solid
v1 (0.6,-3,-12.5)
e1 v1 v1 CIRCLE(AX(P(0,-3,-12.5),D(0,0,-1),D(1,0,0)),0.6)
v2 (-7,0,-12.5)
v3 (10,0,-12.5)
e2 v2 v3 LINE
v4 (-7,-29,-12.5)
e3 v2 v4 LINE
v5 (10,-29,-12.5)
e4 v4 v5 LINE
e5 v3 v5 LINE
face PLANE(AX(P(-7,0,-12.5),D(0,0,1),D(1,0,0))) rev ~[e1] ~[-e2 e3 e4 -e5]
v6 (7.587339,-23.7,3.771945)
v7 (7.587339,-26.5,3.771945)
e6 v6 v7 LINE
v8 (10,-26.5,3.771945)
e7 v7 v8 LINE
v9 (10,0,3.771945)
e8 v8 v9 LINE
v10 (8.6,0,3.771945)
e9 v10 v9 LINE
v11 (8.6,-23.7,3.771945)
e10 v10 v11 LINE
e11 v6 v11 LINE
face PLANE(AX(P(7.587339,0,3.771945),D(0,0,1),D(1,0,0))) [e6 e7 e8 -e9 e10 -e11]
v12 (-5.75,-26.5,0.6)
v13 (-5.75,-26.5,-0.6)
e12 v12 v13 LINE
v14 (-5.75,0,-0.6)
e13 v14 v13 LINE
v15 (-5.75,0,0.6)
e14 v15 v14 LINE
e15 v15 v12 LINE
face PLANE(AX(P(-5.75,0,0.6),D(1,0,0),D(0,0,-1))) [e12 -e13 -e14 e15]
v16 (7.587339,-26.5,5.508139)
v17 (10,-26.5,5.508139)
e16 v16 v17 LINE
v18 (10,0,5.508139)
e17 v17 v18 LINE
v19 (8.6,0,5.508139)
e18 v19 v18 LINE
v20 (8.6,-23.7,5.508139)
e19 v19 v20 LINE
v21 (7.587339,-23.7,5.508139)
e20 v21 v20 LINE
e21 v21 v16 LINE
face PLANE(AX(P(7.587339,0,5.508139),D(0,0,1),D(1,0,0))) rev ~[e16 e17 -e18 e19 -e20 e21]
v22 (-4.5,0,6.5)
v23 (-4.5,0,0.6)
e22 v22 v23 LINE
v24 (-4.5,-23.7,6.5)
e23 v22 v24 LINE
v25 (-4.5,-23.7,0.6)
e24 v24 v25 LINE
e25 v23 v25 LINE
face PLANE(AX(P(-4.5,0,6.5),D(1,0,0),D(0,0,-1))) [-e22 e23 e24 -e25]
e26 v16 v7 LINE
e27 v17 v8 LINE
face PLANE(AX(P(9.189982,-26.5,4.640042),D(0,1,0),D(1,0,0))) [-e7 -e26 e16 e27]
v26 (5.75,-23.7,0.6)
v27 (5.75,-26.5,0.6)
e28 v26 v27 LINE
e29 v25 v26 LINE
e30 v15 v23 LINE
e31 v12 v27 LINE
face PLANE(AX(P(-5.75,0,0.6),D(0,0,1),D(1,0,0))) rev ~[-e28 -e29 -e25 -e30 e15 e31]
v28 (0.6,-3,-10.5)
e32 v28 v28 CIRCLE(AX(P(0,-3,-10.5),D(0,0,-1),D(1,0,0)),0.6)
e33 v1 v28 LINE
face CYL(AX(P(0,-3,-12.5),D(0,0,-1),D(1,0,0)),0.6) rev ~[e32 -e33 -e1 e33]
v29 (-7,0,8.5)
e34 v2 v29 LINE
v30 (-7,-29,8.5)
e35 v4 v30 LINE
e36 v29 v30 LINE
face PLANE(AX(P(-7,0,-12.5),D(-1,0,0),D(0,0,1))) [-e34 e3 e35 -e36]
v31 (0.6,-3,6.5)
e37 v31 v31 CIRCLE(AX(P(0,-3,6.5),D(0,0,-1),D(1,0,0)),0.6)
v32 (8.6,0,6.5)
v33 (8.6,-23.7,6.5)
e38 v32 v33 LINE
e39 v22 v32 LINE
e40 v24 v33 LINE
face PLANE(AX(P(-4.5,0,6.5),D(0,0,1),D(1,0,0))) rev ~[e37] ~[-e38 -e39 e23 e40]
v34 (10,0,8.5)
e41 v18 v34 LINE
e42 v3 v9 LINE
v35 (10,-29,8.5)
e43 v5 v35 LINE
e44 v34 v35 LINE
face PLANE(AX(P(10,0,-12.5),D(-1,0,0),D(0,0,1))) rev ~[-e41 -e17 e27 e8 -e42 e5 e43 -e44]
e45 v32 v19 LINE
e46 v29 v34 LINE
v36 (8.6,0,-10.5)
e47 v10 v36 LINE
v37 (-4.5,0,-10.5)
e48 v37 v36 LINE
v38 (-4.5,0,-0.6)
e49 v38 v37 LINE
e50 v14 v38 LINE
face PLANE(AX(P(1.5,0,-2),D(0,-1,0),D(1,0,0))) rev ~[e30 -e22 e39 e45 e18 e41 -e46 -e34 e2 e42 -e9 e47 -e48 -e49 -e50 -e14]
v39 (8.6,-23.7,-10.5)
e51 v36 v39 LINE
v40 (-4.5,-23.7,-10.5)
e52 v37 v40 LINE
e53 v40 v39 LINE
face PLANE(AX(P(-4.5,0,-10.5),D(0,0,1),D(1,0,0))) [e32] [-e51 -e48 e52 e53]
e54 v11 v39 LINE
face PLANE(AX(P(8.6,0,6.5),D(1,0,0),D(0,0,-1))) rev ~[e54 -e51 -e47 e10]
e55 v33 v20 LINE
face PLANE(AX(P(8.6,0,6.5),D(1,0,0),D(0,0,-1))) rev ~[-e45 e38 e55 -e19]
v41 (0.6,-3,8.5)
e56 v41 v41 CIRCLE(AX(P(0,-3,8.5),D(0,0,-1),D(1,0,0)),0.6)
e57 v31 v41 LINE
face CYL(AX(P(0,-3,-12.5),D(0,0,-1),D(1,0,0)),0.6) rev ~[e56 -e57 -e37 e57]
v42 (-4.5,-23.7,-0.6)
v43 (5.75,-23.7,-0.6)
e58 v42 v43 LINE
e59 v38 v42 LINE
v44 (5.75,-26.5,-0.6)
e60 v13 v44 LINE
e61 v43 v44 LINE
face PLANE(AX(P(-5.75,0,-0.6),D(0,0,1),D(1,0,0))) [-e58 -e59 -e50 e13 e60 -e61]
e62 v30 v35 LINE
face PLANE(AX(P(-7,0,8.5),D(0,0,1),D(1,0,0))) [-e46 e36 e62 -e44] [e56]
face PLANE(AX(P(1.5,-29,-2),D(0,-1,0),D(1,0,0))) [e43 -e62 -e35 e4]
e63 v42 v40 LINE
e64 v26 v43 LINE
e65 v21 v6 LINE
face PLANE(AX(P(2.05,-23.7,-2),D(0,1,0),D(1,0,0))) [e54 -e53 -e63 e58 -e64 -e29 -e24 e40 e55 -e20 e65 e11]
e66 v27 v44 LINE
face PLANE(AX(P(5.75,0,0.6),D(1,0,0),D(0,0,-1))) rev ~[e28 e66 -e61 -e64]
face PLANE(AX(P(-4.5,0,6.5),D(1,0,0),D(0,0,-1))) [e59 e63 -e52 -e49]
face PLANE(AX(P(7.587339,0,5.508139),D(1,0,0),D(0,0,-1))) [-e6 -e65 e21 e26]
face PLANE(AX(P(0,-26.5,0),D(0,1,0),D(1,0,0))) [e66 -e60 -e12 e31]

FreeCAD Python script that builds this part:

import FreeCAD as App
import Part
import Sketcher


def add_polygon(sketch, points):
    """Adds a closed chain of lines whose ends are joined by coincident constraints."""
    first, n = sketch.GeometryCount, len(points)
    for a, b in zip(points, points[1:] + points[:1]):
        sketch.addGeometry(Part.LineSegment(App.Vector(*a, 0), App.Vector(*b, 0)), False)
    for i in range(n):
        sketch.addConstraint(Sketcher.Constraint("Coincident", first + i, 2, first + (i + 1) % n, 1))

doc = App.newDocument("Part")
body = doc.addObject("PartDesign::Body", "Body")

sketch1 = body.newObject("Sketcher::SketchObject", "Sketch")
sketch1.AttachmentSupport = (doc.getObject("XZ_Plane"), [""])
sketch1.MapMode = "FlatFace"
add_polygon(sketch1, [(-7, 8), (-7, -12), (10, -12), (10, 8)])
sketch1.addConstraint(Sketcher.Constraint("Vertical", 0))
sketch1.addConstraint(Sketcher.Constraint("Horizontal", 1))
sketch1.addConstraint(Sketcher.Constraint("Vertical", 2))
sketch1.addConstraint(Sketcher.Constraint("Horizontal", 3))
sketch1.addConstraint(Sketcher.Constraint("DistanceX", 1, 1, 1, 2, 17.0))
sketch1.addConstraint(Sketcher.Constraint("DistanceY", 0, 2, 0, 1, 21.0))
sketch1.addConstraint(Sketcher.Constraint("DistanceX", 0, 2, -1, 1, 7.0))
sketch1.addConstraint(Sketcher.Constraint("DistanceY", 0, 2, -1, 1, 12.5))
pad1 = body.newObject("PartDesign::Pad", "Pad")
pad1.Profile = sketch1
pad1.Length = 29

sketch2 = body.newObject("Sketcher::SketchObject", "Sketch001")
sketch2.AttachmentSupport = (doc.getObject("XZ_Plane"), [""])
sketch2.MapMode = "FlatFace"
add_polygon(sketch2, [(-4, -10), (-4, 6), (9, 6), (9, -10)])
sketch2.addConstraint(Sketcher.Constraint("Vertical", 0))
sketch2.addConstraint(Sketcher.Constraint("Horizontal", 1))
sketch2.addConstraint(Sketcher.Constraint("Vertical", 2))
sketch2.addConstraint(Sketcher.Constraint("Horizontal", 3))
sketch2.addConstraint(Sketcher.Constraint("DistanceY", 0, 1, 0, 2, 17.0))
sketch2.addConstraint(Sketcher.Constraint("DistanceX", 1, 1, 1, 2, 13.1))
sketch2.addConstraint(Sketcher.Constraint("DistanceX", 0, 2, -1, 1, 4.5))
sketch2.addConstraint(Sketcher.Constraint("DistanceY", -1, 1, 0, 2, 6.5))
pocket1 = body.newObject("PartDesign::Pocket", "Pocket")
pocket1.Profile = sketch2
pocket1.Length = 23.7
pocket1.Reversed = True

sketch3 = body.newObject("Sketcher::SketchObject", "Sketch002")
sketch3.AttachmentSupport = (doc.getObject("XZ_Plane"), [""])
sketch3.MapMode = "FlatFace"
add_polygon(sketch3, [(-5.8, -0.6), (-5.8, 0.6), (5.8, 0.6), (5.8, -0.6)])
add_polygon(sketch3, [(7.6, 3.8), (7.6, 5.5), (10.8, 5.5), (10.8, 3.8)])
sketch3.addConstraint(Sketcher.Constraint("Vertical", 0))
sketch3.addConstraint(Sketcher.Constraint("Horizontal", 1))
sketch3.addConstraint(Sketcher.Constraint("Vertical", 2))
sketch3.addConstraint(Sketcher.Constraint("Horizontal", 3))
sketch3.addConstraint(Sketcher.Constraint("Vertical", 4))
sketch3.addConstraint(Sketcher.Constraint("Horizontal", 5))
sketch3.addConstraint(Sketcher.Constraint("Vertical", 6))
sketch3.addConstraint(Sketcher.Constraint("Horizontal", 7))
sketch3.addConstraint(Sketcher.Constraint("Symmetric", 0, 2, 2, 2, -1, 1))
sketch3.addConstraint(Sketcher.Constraint("DistanceX", 1, 1, 1, 2, 11.5))
sketch3.addConstraint(Sketcher.Constraint("DistanceY", 0, 1, 0, 2, 1.2))
sketch3.addConstraint(Sketcher.Constraint("DistanceX", 5, 1, 5, 2, 3.205285))
sketch3.addConstraint(Sketcher.Constraint("DistanceY", 4, 1, 4, 2, 1.736194))
sketch3.addConstraint(Sketcher.Constraint("DistanceX", -1, 1, 4, 2, 7.587339))
sketch3.addConstraint(Sketcher.Constraint("DistanceY", -1, 1, 4, 2, 5.508139))
pocket2 = body.newObject("PartDesign::Pocket", "Pocket001")
pocket2.Profile = sketch3
pocket2.Length = 26.5
pocket2.Reversed = True

sketch4 = body.newObject("Sketcher::SketchObject", "Sketch003")
sketch4.AttachmentSupport = (doc.getObject("XY_Plane"), [""])
sketch4.MapMode = "FlatFace"
sketch4.AttachmentOffset = App.Placement(App.Vector(0, 0, -12.5), App.Rotation())
sketch4.addGeometry(Part.Circle(App.Vector(0, -3, 0), App.Vector(0, 0, 1), 0.6), False)
sketch4.addConstraint(Sketcher.Constraint("PointOnObject", 0, 3, -2))
sketch4.addConstraint(Sketcher.Constraint("Diameter", 0, 1.2))
sketch4.addConstraint(Sketcher.Constraint("DistanceY", 0, 3, -1, 1, 3.0))
pocket3 = body.newObject("PartDesign::Pocket", "Pocket002")
pocket3.Profile = sketch4
pocket3.Length = 27
pocket3.Reversed = True

doc.recompute()
